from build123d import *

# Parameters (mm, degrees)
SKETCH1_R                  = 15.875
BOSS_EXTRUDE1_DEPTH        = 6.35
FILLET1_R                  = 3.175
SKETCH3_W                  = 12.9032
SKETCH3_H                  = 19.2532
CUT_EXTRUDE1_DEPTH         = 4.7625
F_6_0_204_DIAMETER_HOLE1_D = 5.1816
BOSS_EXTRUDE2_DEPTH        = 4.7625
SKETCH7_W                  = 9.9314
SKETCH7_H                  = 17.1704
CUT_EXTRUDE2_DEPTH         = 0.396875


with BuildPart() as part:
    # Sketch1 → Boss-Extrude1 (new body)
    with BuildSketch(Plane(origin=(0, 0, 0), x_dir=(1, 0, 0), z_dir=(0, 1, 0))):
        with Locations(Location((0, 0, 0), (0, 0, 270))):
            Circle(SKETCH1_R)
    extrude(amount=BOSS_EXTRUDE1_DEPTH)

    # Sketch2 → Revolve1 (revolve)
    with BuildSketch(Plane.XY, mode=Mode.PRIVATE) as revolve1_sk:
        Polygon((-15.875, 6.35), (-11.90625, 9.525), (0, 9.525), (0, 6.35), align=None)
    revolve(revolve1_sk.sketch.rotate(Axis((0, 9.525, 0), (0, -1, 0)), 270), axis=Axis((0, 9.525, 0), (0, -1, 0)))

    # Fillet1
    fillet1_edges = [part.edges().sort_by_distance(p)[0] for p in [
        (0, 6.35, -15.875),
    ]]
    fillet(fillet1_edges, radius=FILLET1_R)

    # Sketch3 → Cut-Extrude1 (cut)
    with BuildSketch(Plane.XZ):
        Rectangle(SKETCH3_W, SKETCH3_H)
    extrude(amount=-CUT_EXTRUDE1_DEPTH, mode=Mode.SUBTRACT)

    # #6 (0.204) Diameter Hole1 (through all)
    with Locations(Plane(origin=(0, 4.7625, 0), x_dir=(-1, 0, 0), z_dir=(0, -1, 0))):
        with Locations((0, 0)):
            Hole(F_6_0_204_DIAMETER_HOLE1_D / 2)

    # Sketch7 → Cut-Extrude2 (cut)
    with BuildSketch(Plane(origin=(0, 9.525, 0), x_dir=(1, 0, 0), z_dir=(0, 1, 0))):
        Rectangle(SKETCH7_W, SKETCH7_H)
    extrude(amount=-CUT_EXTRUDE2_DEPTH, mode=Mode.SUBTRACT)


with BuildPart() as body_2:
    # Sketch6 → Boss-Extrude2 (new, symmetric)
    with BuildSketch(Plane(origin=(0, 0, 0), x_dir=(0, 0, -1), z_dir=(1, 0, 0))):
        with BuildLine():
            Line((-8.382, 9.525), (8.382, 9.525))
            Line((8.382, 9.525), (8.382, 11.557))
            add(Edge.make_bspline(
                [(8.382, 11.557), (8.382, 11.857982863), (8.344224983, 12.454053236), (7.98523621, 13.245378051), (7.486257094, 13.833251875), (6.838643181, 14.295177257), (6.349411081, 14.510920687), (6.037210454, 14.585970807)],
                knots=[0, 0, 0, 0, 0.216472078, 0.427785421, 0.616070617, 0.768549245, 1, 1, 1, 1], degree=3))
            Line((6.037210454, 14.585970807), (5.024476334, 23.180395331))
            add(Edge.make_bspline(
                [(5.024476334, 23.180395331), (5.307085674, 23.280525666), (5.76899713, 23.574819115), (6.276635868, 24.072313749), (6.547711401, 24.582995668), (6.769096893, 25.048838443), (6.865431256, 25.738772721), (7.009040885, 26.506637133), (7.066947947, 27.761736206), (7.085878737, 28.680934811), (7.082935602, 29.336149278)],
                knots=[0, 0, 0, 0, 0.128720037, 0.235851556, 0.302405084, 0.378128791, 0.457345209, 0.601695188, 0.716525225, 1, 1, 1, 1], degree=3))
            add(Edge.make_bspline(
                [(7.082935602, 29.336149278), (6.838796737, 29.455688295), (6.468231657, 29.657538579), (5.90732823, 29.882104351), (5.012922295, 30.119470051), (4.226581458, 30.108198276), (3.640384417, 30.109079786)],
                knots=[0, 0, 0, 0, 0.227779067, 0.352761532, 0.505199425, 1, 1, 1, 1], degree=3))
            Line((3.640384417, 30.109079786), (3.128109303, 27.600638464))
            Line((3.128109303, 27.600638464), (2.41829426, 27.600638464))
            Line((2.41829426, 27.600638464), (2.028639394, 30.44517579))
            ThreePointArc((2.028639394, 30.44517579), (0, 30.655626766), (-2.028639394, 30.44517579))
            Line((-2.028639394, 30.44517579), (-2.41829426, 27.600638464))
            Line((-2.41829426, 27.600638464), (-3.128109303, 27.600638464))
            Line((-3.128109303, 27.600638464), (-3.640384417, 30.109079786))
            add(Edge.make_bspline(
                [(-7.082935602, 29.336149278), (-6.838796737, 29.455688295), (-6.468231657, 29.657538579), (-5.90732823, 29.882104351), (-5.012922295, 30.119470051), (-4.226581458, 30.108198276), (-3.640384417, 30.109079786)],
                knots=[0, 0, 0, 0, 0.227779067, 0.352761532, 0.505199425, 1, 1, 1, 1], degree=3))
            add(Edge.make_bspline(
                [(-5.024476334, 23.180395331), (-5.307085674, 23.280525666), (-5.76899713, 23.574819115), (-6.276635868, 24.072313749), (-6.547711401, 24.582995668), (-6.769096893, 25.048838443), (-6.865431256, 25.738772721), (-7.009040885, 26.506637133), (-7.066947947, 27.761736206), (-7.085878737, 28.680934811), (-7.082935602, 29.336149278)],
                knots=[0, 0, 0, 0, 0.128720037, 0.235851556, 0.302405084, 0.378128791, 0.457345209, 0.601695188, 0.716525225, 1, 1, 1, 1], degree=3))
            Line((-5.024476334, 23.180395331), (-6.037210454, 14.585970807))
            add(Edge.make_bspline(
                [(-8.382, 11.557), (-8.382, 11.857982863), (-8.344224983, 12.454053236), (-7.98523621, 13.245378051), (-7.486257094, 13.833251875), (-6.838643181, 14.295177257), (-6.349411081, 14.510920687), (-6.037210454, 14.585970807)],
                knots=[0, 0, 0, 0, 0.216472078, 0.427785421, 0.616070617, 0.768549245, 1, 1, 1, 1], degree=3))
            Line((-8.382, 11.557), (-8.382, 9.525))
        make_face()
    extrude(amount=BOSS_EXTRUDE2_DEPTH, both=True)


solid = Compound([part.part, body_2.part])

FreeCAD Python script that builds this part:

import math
import FreeCAD as App
import Part
import Sketcher

V = App.Vector
Q = App.Units.Quantity


def edges_at(feature, points):
    """Names of the edges that pass closest to the given points."""
    edges = feature.Shape.Edges
    near = lambda p: min(range(len(edges)), key=lambda i: edges[i].distToShape(Part.Vertex(*p))[0])
    return sorted({f"Edge{near(p) + 1}" for p in points})

doc = App.newDocument("Part")
body = doc.addObject("PartDesign::Body", "Body")

# Sketch on XZ plane
sketch1 = doc.addObject("Sketcher::SketchObject", "Sketch")
body.addObject(sketch1)
sketch1.AttachmentSupport = (doc.XZ_Plane, [""])
sketch1.MapMode = "FlatFace"
sketch1.addGeometry(Part.Circle(V(0, 0, 0), V(0, 0, 1), 15.875), False)
sketch1.addConstraint(Sketcher.Constraint("Coincident", 0, 3, -1, 1))
sketch1.addConstraint(Sketcher.Constraint("Diameter", 0, Q("1.25 in")))
pad1 = doc.addObject("PartDesign::Pad", "Pad")
body.addObject(pad1)
pad1.Profile = sketch1
pad1.Length = Q("0.25 in")
pad1.Reversed = True

# Sketch on XY plane
sketch2 = doc.addObject("Sketcher::SketchObject", "Sketch001")
body.addObject(sketch2)
sketch2.AttachmentSupport = (doc.XY_Plane, [""])
sketch2.MapMode = "FlatFace"
sketch2.addGeometry(Part.LineSegment(V(-11.90625, 9.525, 0), V(-15.875, 6.35, 0)), False)
sketch2.addGeometry(Part.LineSegment(V(-15.875, 6.35, 0), V(0, 6.35, 0)), False)
sketch2.addGeometry(Part.LineSegment(V(0, 6.35, 0), V(0, 9.525, 0)), False)
sketch2.addGeometry(Part.LineSegment(V(0, 9.525, 0), V(-11.90625, 9.525, 0)), False)
sketch2.addConstraint(Sketcher.Constraint("Coincident", 0, 2, 1, 1))
sketch2.addConstraint(Sketcher.Constraint("Coincident", 1, 2, 2, 1))
sketch2.addConstraint(Sketcher.Constraint("Coincident", 2, 2, 3, 1))
sketch2.addConstraint(Sketcher.Constraint("Coincident", 3, 2, 0, 1))
sketch2.addConstraint(Sketcher.Constraint("Horizontal", 1))
sketch2.addConstraint(Sketcher.Constraint("Vertical", 2))
sketch2.addConstraint(Sketcher.Constraint("Horizontal", 3))
sketch2.addConstraint(Sketcher.Constraint("PointOnObject", 1, 2, -2))
sketch2.addConstraint(Sketcher.Constraint("DistanceX", 1, 1, 1, 2, Q("0.625 in")))
sketch2.addConstraint(Sketcher.Constraint("DistanceX", 3, 2, 3, 1, Q("0.46875 in")))
sketch2.addConstraint(Sketcher.Constraint("DistanceY", 2, 1, 2, 2, Q("0.125 in")))
sketch2.addConstraint(Sketcher.Constraint("DistanceY", -1, 1, 0, 2, Q("0.25 in")))
revolution = doc.addObject("PartDesign::Revolution", "Revolution")
body.addObject(revolution)
revolution.Profile = sketch2
revolution.ReferenceAxis = (sketch2, ["V_Axis"])
revolution.Angle = 360
doc.recompute()

fillet = doc.addObject("PartDesign::Fillet", "Fillet")
body.addObject(fillet)
fillet.Base = (revolution, edges_at(revolution, [(0, 6.35, -15.875)]))
fillet.Radius = Q("0.125 in")

# Sketch on XZ plane
sketch3 = doc.addObject("Sketcher::SketchObject", "Sketch002")
body.addObject(sketch3)
sketch3.AttachmentSupport = (doc.XZ_Plane, [""])
sketch3.MapMode = "FlatFace"
sketch3.addGeometry(Part.LineSegment(V(-6.4516, 9.6266, 0), V(-6.4516, -9.6266, 0)), False)
sketch3.addGeometry(Part.LineSegment(V(-6.4516, -9.6266, 0), V(6.4516, -9.6266, 0)), False)
sketch3.addGeometry(Part.LineSegment(V(6.4516, -9.6266, 0), V(6.4516, 9.6266, 0)), False)
sketch3.addGeometry(Part.LineSegment(V(6.4516, 9.6266, 0), V(-6.4516, 9.6266, 0)), False)
sketch3.addConstraint(Sketcher.Constraint("Coincident", 0, 2, 1, 1))
sketch3.addConstraint(Sketcher.Constraint("Coincident", 1, 2, 2, 1))
sketch3.addConstraint(Sketcher.Constraint("Coincident", 2, 2, 3, 1))
sketch3.addConstraint(Sketcher.Constraint("Coincident", 3, 2, 0, 1))
sketch3.addConstraint(Sketcher.Constraint("Vertical", 0))
sketch3.addConstraint(Sketcher.Constraint("Horizontal", 1))
sketch3.addConstraint(Sketcher.Constraint("Vertical", 2))
sketch3.addConstraint(Sketcher.Constraint("Horizontal", 3))
sketch3.addConstraint(Sketcher.Constraint("Symmetric", 0, 2, 2, 2, -1, 1))
sketch3.addConstraint(Sketcher.Constraint("DistanceX", 1, 1, 1, 2, Q("0.508 in")))
sketch3.addConstraint(Sketcher.Constraint("DistanceY", 0, 2, 0, 1, Q("0.758 in")))
pocket1 = doc.addObject("PartDesign::Pocket", "Pocket")
body.addObject(pocket1)
pocket1.Profile = sketch3
pocket1.Length = Q("0.1875 in")

# Sketch on XZ plane
sketch4 = doc.addObject("Sketcher::SketchObject", "Sketch003")
body.addObject(sketch4)
sketch4.AttachmentSupport = (doc.XZ_Plane, [""])
sketch4.MapMode = "FlatFace"
sketch4.AttachmentOffset = App.Placement(V(0, 0, -0.1875 * 25.4), App.Rotation())
sketch4.addGeometry(Part.Circle(V(0, 0, 0), V(0, 0, 1), 2.5908), False)
sketch4.addConstraint(Sketcher.Constraint("Coincident", 0, 3, -1, 1))
sketch4.addConstraint(Sketcher.Constraint("Diameter", 0, Q("0.204 in")))
doc.recompute()
hole = doc.addObject("PartDesign::Hole", "Hole")
body.addObject(hole)
hole.Profile = sketch4
hole.ThreadType = "None"
hole.Diameter = Q("0.204 in")
hole.DepthType = "ThroughAll"

# Sketch on XZ plane
sketch5 = doc.addObject("Sketcher::SketchObject", "Sketch004")
body.addObject(sketch5)
sketch5.AttachmentSupport = (doc.XZ_Plane, [""])
sketch5.MapMode = "FlatFace"
sketch5.AttachmentOffset = App.Placement(V(0, 0, -0.375 * 25.4), App.Rotation())
sketch5.addGeometry(Part.LineSegment(V(-4.9657, -8.5852, 0), V(-4.9657, 8.5852, 0)), False)
sketch5.addGeometry(Part.LineSegment(V(-4.9657, 8.5852, 0), V(4.9657, 8.5852, 0)), False)
sketch5.addGeometry(Part.LineSegment(V(4.9657, 8.5852, 0), V(4.9657, -8.5852, 0)), False)
sketch5.addGeometry(Part.LineSegment(V(4.9657, -8.5852, 0), V(-4.9657, -8.5852, 0)), False)
sketch5.addConstraint(Sketcher.Constraint("Coincident", 0, 2, 1, 1))
sketch5.addConstraint(Sketcher.Constraint("Coincident", 1, 2, 2, 1))
sketch5.addConstraint(Sketcher.Constraint("Coincident", 2, 2, 3, 1))
sketch5.addConstraint(Sketcher.Constraint("Coincident", 3, 2, 0, 1))
sketch5.addConstraint(Sketcher.Constraint("Vertical", 0))
sketch5.addConstraint(Sketcher.Constraint("Horizontal", 1))
sketch5.addConstraint(Sketcher.Constraint("Vertical", 2))
sketch5.addConstraint(Sketcher.Constraint("Horizontal", 3))
sketch5.addConstraint(Sketcher.Constraint("Symmetric", 0, 2, 2, 2, -1, 1))
sketch5.addConstraint(Sketcher.Constraint("DistanceX", 1, 1, 1, 2, Q("0.391 in")))
sketch5.addConstraint(Sketcher.Constraint("DistanceY", 0, 1, 0, 2, Q("0.676 in")))
pocket2 = doc.addObject("PartDesign::Pocket", "Pocket001")
body.addObject(pocket2)
pocket2.Profile = sketch5
pocket2.Length = Q("0.015625 in")
pocket2.Reversed = True
body2 = doc.addObject("PartDesign::Body", "Body001")

# Sketch on YZ plane
sketch6 = doc.addObject("Sketcher::SketchObject", "Sketch005")
body2.addObject(sketch6)
sketch6.AttachmentSupport = (doc.getObject("YZ_Plane001"), [""])
sketch6.MapMode = "FlatFace"
sketch6.addGeometry(Part.LineSegment(V(9.525, 8.382, 0), V(9.525, -8.382, 0)), False)
sketch6.addGeometry(Part.LineSegment(V(9.525, -8.382, 0), V(11.557, -8.382, 0)), False)
sketch6.addGeometry(Part.BSplineCurve([V(11.557, -8.382, 0), V(11.857983, -8.382, 0), V(12.454053, -8.344225, 0), V(13.245378, -7.985236, 0), V(13.833252, -7.486257, 0), V(14.295177, -6.838643, 0), V(14.510921, -6.349411, 0), V(14.585971, -6.03721, 0)], [4, 1, 1, 1, 1, 4], [0, 0.216472078, 0.427785421, 0.616070617, 0.768549245, 1], False, 3, [1, 1, 1, 1, 1, 1, 1, 1], False), False)
sketch6.addGeometry(Part.LineSegment(V(14.585971, -6.03721, 0), V(23.180395, -5.024476, 0)), False)
sketch6.addGeometry(Part.BSplineCurve([V(23.180395, -5.024476, 0), V(23.280526, -5.307086, 0), V(23.574819, -5.768997, 0), V(24.072314, -6.276636, 0), V(24.582996, -6.547711, 0), V(25.048838, -6.769097, 0), V(25.738773, -6.865431, 0), V(26.506637, -7.009041, 0), V(27.761736, -7.066948, 0), V(28.680935, -7.085879, 0), V(29.336149, -7.082936, 0)], [4, 1, 1, 1, 1, 1, 1, 1, 4], [0, 0.128720037, 0.235851556, 0.302405084, 0.378128791, 0.457345209, 0.601695188, 0.716525225, 1], False, 3, [1, 1, 1, 1, 1, 1, 1, 1, 1, 1, 1], False), False)
sketch6.addGeometry(Part.BSplineCurve([V(29.336149, -7.082936, 0), V(29.455688, -6.838797, 0), V(29.657539, -6.468232, 0), V(29.882104, -5.907328, 0), V(30.11947, -5.012922, 0), V(30.108198, -4.226581, 0), V(30.10908, -3.640384, 0)], [4, 1, 1, 1, 4], [0, 0.227779067, 0.352761532, 0.505199425, 1], False, 3, [1, 1, 1, 1, 1, 1, 1], False), False)
sketch6.addGeometry(Part.LineSegment(V(30.10908, -3.640384, 0), V(27.600638, -3.128109, 0)), False)
sketch6.addGeometry(Part.LineSegment(V(27.600638, -3.128109, 0), V(27.600638, -2.418294, 0)), False)
sketch6.addGeometry(Part.LineSegment(V(27.600638, -2.418294, 0), V(30.445176, -2.028639, 0)), False)
sketch6.addGeometry(Part.ArcOfCircle(Part.Circle(V(20.77288, 0, 0), V(0, 0, 1), 9.882747), math.radians(-11.845352), math.radians(11.845352)), False)
sketch6.addGeometry(Part.LineSegment(V(30.445176, 2.028639, 0), V(27.600638, 2.418294, 0)), False)
sketch6.addGeometry(Part.LineSegment(V(27.600638, 2.418294, 0), V(27.600638, 3.128109, 0)), False)
sketch6.addGeometry(Part.LineSegment(V(27.600638, 3.128109, 0), V(30.10908, 3.640384, 0)), False)
sketch6.addGeometry(Part.BSplineCurve([V(29.336149, 7.082936, 0), V(29.455688, 6.838797, 0), V(29.657539, 6.468232, 0), V(29.882104, 5.907328, 0), V(30.11947, 5.012922, 0), V(30.108198, 4.226581, 0), V(30.10908, 3.640384, 0)], [4, 1, 1, 1, 4], [0, 0.227779067, 0.352761532, 0.505199425, 1], False, 3, [1, 1, 1, 1, 1, 1, 1], False), False)
sketch6.addGeometry(Part.BSplineCurve([V(23.180395, 5.024476, 0), V(23.280526, 5.307086, 0), V(23.574819, 5.768997, 0), V(24.072314, 6.276636, 0), V(24.582996, 6.547711, 0), V(25.048838, 6.769097, 0), V(25.738773, 6.865431, 0), V(26.506637, 7.009041, 0), V(27.761736, 7.066948, 0), V(28.680935, 7.085879, 0), V(29.336149, 7.082936, 0)], [4, 1, 1, 1, 1, 1, 1, 1, 4], [0, 0.128720037, 0.235851556, 0.302405084, 0.378128791, 0.457345209, 0.601695188, 0.716525225, 1], False, 3, [1, 1, 1, 1, 1, 1, 1, 1, 1, 1, 1], False), False)
sketch6.addGeometry(Part.LineSegment(V(23.180395, 5.024476, 0), V(14.585971, 6.03721, 0)), False)
sketch6.addGeometry(Part.BSplineCurve([V(11.557, 8.382, 0), V(11.857983, 8.382, 0), V(12.454053, 8.344225, 0), V(13.245378, 7.985236, 0), V(13.833252, 7.486257, 0), V(14.295177, 6.838643, 0), V(14.510921, 6.349411, 0), V(14.585971, 6.03721, 0)], [4, 1, 1, 1, 1, 4], [0, 0.216472078, 0.427785421, 0.616070617, 0.768549245, 1], False, 3, [1, 1, 1, 1, 1, 1, 1, 1], False), False)
sketch6.addGeometry(Part.LineSegment(V(11.557, 8.382, 0), V(9.525, 8.382, 0)), False)
sketch6.addConstraint(Sketcher.Constraint("Block", 2))
sketch6.addConstraint(Sketcher.Constraint("Block", 4))
sketch6.addConstraint(Sketcher.Constraint("Block", 5))
sketch6.addConstraint(Sketcher.Constraint("Block", 13))
sketch6.addConstraint(Sketcher.Constraint("Block", 14))
sketch6.addConstraint(Sketcher.Constraint("Block", 16))
sketch6.addConstraint(Sketcher.Constraint("Coincident", 0, 2, 1, 1))
sketch6.addConstraint(Sketcher.Constraint("Coincident", 1, 2, 2, 1))
sketch6.addConstraint(Sketcher.Constraint("Coincident", 2, 2, 3, 1))
sketch6.addConstraint(Sketcher.Constraint("Coincident", 3, 2, 4, 1))
sketch6.addConstraint(Sketcher.Constraint("Coincident", 5, 2, 6, 1))
sketch6.addConstraint(Sketcher.Constraint("Coincident", 6, 2, 7, 1))
sketch6.addConstraint(Sketcher.Constraint("Coincident", 7, 2, 8, 1))
sketch6.addConstraint(Sketcher.Constraint("Coincident", 8, 2, 9, 1))
sketch6.addConstraint(Sketcher.Constraint("Coincident", 9, 2, 10, 1))
sketch6.addConstraint(Sketcher.Constraint("Coincident", 10, 2, 11, 1))
sketch6.addConstraint(Sketcher.Constraint("Coincident", 11, 2, 12, 1))
sketch6.addConstraint(Sketcher.Constraint("Coincident", 12, 2, 13, 2))
sketch6.addConstraint(Sketcher.Constraint("Coincident", 14, 1, 15, 1))
sketch6.addConstraint(Sketcher.Constraint("Coincident", 15, 2, 16, 2))
sketch6.addConstraint(Sketcher.Constraint("Coincident", 16, 1, 17, 1))
sketch6.addConstraint(Sketcher.Constraint("Coincident", 17, 2, 0, 1))
sketch6.addConstraint(Sketcher.Constraint("Vertical", 0))
sketch6.addConstraint(Sketcher.Constraint("Horizontal", 1))
sketch6.addConstraint(Sketcher.Constraint("Vertical", 7))
sketch6.addConstraint(Sketcher.Constraint("Vertical", 11))
sketch6.addConstraint(Sketcher.Constraint("Horizontal", 17))
sketch6.addConstraint(Sketcher.Constraint("Symmetric", 8, 2, 9, 2, -1))
sketch6.addConstraint(Sketcher.Constraint("Symmetric", 7, 2, 10, 2, -1))
sketch6.addConstraint(Sketcher.Constraint("Equal", 7, 11))
sketch6.addConstraint(Sketcher.Constraint("DistanceX", 1, 1, 1, 2, Q("0.08 in")))
sketch6.addConstraint(Sketcher.Constraint("Radius", 9, Q("9.882747 mm")))
sketch6.addConstraint(Sketcher.Constraint("Distance", 8, Q("2.871101 mm")))
sketch6.addConstraint(Sketcher.Constraint("DistanceY", 11, 2, 15, 2, Q("2.909101 mm")))
sketch6.addConstraint(Sketcher.Constraint("DistanceY", 7, 1, 7, 2, Q("0.709815 mm")))
sketch6.addConstraint(Sketcher.Constraint("DistanceX", -1, 1, 9, 3, Q("20.77288 mm")))
sketch6.addConstraint(Sketcher.Constraint("DistanceX", -1, 1, 6, 2, Q("27.600638 mm")))
pad2 = doc.addObject("PartDesign::Pad", "Pad001")
body2.addObject(pad2)
pad2.Profile = sketch6
pad2.Length = Q("0.375 in")
pad2.Midplane = True

doc.recompute()
